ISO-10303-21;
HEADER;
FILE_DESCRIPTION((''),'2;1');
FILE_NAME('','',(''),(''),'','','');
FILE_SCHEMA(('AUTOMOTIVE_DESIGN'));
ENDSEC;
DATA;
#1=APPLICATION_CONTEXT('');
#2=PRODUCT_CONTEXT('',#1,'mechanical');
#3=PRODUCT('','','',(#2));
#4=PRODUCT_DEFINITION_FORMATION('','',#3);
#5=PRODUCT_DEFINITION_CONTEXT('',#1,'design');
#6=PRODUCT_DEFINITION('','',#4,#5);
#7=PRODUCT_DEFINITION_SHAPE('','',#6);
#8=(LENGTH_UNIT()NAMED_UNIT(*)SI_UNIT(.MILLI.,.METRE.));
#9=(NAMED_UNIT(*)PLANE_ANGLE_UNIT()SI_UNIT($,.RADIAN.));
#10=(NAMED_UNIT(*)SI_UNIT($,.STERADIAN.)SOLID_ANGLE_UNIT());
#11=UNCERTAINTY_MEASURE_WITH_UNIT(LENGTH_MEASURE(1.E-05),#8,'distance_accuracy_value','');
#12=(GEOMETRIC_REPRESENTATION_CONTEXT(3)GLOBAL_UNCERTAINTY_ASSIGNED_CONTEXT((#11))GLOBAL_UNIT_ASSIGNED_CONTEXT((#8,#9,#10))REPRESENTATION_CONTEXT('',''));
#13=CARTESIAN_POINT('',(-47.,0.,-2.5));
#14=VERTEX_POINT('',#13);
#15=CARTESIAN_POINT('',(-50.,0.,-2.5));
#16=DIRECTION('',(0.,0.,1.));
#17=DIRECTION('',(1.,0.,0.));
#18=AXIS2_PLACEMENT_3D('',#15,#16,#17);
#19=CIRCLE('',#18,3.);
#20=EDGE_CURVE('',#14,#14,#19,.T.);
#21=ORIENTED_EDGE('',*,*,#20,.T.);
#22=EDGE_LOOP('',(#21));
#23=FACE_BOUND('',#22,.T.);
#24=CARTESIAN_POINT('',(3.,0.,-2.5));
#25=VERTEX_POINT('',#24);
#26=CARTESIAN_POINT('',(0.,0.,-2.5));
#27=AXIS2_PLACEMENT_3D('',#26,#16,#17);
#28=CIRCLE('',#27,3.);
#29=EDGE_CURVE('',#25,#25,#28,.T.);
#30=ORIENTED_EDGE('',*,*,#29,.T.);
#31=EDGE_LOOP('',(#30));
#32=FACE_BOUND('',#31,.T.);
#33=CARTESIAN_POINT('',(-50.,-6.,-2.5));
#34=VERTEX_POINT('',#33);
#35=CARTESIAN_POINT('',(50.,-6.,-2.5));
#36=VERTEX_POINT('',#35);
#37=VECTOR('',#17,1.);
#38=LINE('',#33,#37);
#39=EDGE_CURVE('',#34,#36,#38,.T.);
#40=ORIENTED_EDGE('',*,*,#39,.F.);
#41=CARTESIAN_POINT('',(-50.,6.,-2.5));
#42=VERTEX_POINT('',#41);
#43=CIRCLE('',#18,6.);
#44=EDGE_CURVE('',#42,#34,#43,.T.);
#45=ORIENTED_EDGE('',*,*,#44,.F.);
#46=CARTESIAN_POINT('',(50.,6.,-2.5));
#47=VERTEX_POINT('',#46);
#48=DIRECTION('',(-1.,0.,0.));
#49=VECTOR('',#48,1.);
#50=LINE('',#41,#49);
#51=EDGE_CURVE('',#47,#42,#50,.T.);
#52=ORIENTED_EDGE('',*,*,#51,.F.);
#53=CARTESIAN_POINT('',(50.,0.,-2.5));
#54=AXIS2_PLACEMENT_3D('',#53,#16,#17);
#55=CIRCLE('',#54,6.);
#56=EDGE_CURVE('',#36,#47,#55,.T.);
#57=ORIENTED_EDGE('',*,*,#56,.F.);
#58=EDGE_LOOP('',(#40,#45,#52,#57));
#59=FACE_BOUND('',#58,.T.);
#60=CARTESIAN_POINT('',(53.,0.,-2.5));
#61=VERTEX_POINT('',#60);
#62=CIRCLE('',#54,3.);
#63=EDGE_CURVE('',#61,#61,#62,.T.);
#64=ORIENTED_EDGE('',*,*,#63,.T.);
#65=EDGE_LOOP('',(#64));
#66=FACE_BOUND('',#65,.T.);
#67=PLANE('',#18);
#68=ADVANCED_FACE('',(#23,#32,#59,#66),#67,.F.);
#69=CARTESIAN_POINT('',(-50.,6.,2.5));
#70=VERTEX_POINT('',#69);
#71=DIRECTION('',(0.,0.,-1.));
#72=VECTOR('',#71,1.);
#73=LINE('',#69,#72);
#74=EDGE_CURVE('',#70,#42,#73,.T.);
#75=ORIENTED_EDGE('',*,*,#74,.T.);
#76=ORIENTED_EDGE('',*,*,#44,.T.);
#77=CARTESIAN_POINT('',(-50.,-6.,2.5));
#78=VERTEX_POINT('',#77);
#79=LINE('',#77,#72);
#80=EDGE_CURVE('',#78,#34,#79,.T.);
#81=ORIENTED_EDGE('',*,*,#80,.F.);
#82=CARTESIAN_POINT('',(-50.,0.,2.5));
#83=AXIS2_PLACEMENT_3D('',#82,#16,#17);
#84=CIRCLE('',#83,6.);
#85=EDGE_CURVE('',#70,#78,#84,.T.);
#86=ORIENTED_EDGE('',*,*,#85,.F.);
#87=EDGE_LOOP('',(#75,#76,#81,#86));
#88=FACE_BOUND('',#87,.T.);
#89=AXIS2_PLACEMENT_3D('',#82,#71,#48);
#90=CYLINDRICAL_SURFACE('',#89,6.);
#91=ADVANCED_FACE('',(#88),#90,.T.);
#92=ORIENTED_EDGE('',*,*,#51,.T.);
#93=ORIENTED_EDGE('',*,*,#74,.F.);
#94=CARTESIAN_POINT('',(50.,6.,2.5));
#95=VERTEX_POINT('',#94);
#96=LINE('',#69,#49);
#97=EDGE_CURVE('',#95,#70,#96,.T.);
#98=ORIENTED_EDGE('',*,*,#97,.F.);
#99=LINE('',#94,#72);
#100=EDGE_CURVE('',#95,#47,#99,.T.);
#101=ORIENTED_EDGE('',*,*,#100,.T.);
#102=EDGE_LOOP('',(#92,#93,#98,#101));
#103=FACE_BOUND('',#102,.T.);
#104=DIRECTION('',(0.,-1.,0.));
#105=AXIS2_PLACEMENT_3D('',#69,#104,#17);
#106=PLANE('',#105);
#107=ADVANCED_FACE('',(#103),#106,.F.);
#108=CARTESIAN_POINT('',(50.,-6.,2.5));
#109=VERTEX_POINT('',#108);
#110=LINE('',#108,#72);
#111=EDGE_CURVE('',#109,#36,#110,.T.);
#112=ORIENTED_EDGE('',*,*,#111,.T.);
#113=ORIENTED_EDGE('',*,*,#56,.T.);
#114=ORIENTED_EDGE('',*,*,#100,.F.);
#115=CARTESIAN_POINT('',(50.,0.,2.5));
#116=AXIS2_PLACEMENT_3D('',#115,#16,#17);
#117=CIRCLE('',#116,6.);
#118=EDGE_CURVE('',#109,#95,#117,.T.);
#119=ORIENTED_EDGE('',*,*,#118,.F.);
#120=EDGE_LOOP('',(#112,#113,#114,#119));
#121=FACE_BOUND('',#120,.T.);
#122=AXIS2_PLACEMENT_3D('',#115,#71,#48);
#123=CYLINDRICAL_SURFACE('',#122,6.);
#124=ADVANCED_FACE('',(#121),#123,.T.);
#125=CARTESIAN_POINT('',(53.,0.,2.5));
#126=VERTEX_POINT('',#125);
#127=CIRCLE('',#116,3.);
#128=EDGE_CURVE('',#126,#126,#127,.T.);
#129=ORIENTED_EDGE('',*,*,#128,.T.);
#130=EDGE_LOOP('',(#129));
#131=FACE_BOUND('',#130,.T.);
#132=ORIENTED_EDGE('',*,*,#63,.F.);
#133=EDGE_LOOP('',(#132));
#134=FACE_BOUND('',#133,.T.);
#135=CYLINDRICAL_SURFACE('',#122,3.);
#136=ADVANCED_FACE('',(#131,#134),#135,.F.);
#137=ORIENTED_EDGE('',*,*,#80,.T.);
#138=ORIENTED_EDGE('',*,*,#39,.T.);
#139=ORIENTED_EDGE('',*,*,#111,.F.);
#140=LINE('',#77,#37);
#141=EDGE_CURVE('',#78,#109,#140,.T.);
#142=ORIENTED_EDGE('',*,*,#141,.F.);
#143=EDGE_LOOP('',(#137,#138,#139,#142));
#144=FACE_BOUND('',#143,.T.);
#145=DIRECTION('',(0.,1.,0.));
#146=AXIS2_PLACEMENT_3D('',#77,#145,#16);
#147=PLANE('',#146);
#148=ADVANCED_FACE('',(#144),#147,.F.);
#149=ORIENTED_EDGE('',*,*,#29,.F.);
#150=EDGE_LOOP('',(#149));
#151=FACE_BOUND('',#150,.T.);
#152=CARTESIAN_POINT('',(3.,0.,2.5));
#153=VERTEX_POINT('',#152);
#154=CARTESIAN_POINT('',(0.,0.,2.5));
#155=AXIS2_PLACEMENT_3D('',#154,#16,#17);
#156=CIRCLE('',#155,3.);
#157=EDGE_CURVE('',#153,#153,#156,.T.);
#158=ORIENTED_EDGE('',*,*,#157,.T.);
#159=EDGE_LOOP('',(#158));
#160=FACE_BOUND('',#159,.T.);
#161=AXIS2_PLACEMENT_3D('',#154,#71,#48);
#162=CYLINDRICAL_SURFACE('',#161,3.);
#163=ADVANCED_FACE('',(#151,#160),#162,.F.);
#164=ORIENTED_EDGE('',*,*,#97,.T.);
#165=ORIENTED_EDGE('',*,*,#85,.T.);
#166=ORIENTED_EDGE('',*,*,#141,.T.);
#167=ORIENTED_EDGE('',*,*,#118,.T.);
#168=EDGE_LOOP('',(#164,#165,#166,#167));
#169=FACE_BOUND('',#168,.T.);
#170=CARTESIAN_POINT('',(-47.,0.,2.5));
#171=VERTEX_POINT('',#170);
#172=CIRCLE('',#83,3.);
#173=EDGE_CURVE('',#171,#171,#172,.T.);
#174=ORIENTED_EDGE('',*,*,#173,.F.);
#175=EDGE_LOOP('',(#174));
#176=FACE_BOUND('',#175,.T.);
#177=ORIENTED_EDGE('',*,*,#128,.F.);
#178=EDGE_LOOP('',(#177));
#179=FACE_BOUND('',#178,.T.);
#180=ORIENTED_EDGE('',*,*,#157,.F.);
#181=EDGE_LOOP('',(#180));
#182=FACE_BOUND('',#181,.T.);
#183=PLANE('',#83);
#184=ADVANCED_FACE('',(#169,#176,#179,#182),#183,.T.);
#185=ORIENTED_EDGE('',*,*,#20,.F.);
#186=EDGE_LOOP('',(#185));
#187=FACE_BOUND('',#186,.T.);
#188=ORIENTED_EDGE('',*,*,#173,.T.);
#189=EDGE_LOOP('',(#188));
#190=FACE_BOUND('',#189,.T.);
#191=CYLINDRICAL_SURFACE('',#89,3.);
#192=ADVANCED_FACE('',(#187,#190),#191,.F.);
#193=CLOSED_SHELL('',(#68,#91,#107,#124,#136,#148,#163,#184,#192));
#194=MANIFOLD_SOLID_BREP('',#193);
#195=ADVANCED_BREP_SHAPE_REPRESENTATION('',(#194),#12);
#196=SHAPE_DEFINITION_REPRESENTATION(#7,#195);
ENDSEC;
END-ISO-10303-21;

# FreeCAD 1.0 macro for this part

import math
import FreeCAD as App
import Part
import Sketcher

V = App.Vector
Q = App.Units.Quantity

doc = App.newDocument("Part")
body = doc.addObject("PartDesign::Body", "Body")

# Sketch on XY plane
sketch1 = doc.addObject("Sketcher::SketchObject", "Sketch")
body.addObject(sketch1)
sketch1.AttachmentSupport = (doc.XY_Plane, [""])
sketch1.MapMode = "FlatFace"
sketch1.addGeometry(Part.LineSegment(V(50, 6, 0), V(-50, 6, 0)), False)
sketch1.addGeometry(Part.ArcOfCircle(Part.Circle(V(-50, 0, 0), V(0, 0, 1), 6), math.radians(90), math.radians(270)), False)
sketch1.addGeometry(Part.LineSegment(V(-50, -6, 0), V(50, -6, 0)), False)
sketch1.addGeometry(Part.ArcOfCircle(Part.Circle(V(50, 0, 0), V(0, 0, 1), 6), math.radians(-90), math.radians(90)), False)
sketch1.addGeometry(Part.Circle(V(50, 0, 0), V(0, 0, 1), 3), False)
sketch1.addGeometry(Part.Circle(V(0, 0, 0), V(0, 0, 1), 3), False)
sketch1.addGeometry(Part.Circle(V(-50, 0, 0), V(0, 0, 1), 3), False)
sketch1.addConstraint(Sketcher.Constraint("Tangent", 0, 2, 1, 1))
sketch1.addConstraint(Sketcher.Constraint("Tangent", 1, 2, 2, 1))
sketch1.addConstraint(Sketcher.Constraint("Tangent", 2, 2, 3, 1))
sketch1.addConstraint(Sketcher.Constraint("Tangent", 3, 2, 0, 1))
sketch1.addConstraint(Sketcher.Constraint("Horizontal", 0))
sketch1.addConstraint(Sketcher.Constraint("Horizontal", 2))
sketch1.addConstraint(Sketcher.Constraint("Coincident", 5, 3, -1, 1))
sketch1.addConstraint(Sketcher.Constraint("Coincident", 4, 3, 3, 3))
sketch1.addConstraint(Sketcher.Constraint("Coincident", 6, 3, 1, 3))
sketch1.addConstraint(Sketcher.Constraint("Equal", 4, 5))
sketch1.addConstraint(Sketcher.Constraint("Equal", 5, 6))
sketch1.addConstraint(Sketcher.Constraint("Symmetric", 1, 3, 3, 3, -1, 1))
sketch1.addConstraint(Sketcher.Constraint("Diameter", 4, Q("6 mm")))
sketch1.addConstraint(Sketcher.Constraint("Radius", 1, Q("6 mm")))
sketch1.addConstraint(Sketcher.Constraint("DistanceX", 0, 2, 0, 1, Q("100 mm")))
pad1 = doc.addObject("PartDesign::Pad", "Pad")
body.addObject(pad1)
pad1.Profile = sketch1
pad1.Length = 5
pad1.Midplane = True

doc.recompute()
